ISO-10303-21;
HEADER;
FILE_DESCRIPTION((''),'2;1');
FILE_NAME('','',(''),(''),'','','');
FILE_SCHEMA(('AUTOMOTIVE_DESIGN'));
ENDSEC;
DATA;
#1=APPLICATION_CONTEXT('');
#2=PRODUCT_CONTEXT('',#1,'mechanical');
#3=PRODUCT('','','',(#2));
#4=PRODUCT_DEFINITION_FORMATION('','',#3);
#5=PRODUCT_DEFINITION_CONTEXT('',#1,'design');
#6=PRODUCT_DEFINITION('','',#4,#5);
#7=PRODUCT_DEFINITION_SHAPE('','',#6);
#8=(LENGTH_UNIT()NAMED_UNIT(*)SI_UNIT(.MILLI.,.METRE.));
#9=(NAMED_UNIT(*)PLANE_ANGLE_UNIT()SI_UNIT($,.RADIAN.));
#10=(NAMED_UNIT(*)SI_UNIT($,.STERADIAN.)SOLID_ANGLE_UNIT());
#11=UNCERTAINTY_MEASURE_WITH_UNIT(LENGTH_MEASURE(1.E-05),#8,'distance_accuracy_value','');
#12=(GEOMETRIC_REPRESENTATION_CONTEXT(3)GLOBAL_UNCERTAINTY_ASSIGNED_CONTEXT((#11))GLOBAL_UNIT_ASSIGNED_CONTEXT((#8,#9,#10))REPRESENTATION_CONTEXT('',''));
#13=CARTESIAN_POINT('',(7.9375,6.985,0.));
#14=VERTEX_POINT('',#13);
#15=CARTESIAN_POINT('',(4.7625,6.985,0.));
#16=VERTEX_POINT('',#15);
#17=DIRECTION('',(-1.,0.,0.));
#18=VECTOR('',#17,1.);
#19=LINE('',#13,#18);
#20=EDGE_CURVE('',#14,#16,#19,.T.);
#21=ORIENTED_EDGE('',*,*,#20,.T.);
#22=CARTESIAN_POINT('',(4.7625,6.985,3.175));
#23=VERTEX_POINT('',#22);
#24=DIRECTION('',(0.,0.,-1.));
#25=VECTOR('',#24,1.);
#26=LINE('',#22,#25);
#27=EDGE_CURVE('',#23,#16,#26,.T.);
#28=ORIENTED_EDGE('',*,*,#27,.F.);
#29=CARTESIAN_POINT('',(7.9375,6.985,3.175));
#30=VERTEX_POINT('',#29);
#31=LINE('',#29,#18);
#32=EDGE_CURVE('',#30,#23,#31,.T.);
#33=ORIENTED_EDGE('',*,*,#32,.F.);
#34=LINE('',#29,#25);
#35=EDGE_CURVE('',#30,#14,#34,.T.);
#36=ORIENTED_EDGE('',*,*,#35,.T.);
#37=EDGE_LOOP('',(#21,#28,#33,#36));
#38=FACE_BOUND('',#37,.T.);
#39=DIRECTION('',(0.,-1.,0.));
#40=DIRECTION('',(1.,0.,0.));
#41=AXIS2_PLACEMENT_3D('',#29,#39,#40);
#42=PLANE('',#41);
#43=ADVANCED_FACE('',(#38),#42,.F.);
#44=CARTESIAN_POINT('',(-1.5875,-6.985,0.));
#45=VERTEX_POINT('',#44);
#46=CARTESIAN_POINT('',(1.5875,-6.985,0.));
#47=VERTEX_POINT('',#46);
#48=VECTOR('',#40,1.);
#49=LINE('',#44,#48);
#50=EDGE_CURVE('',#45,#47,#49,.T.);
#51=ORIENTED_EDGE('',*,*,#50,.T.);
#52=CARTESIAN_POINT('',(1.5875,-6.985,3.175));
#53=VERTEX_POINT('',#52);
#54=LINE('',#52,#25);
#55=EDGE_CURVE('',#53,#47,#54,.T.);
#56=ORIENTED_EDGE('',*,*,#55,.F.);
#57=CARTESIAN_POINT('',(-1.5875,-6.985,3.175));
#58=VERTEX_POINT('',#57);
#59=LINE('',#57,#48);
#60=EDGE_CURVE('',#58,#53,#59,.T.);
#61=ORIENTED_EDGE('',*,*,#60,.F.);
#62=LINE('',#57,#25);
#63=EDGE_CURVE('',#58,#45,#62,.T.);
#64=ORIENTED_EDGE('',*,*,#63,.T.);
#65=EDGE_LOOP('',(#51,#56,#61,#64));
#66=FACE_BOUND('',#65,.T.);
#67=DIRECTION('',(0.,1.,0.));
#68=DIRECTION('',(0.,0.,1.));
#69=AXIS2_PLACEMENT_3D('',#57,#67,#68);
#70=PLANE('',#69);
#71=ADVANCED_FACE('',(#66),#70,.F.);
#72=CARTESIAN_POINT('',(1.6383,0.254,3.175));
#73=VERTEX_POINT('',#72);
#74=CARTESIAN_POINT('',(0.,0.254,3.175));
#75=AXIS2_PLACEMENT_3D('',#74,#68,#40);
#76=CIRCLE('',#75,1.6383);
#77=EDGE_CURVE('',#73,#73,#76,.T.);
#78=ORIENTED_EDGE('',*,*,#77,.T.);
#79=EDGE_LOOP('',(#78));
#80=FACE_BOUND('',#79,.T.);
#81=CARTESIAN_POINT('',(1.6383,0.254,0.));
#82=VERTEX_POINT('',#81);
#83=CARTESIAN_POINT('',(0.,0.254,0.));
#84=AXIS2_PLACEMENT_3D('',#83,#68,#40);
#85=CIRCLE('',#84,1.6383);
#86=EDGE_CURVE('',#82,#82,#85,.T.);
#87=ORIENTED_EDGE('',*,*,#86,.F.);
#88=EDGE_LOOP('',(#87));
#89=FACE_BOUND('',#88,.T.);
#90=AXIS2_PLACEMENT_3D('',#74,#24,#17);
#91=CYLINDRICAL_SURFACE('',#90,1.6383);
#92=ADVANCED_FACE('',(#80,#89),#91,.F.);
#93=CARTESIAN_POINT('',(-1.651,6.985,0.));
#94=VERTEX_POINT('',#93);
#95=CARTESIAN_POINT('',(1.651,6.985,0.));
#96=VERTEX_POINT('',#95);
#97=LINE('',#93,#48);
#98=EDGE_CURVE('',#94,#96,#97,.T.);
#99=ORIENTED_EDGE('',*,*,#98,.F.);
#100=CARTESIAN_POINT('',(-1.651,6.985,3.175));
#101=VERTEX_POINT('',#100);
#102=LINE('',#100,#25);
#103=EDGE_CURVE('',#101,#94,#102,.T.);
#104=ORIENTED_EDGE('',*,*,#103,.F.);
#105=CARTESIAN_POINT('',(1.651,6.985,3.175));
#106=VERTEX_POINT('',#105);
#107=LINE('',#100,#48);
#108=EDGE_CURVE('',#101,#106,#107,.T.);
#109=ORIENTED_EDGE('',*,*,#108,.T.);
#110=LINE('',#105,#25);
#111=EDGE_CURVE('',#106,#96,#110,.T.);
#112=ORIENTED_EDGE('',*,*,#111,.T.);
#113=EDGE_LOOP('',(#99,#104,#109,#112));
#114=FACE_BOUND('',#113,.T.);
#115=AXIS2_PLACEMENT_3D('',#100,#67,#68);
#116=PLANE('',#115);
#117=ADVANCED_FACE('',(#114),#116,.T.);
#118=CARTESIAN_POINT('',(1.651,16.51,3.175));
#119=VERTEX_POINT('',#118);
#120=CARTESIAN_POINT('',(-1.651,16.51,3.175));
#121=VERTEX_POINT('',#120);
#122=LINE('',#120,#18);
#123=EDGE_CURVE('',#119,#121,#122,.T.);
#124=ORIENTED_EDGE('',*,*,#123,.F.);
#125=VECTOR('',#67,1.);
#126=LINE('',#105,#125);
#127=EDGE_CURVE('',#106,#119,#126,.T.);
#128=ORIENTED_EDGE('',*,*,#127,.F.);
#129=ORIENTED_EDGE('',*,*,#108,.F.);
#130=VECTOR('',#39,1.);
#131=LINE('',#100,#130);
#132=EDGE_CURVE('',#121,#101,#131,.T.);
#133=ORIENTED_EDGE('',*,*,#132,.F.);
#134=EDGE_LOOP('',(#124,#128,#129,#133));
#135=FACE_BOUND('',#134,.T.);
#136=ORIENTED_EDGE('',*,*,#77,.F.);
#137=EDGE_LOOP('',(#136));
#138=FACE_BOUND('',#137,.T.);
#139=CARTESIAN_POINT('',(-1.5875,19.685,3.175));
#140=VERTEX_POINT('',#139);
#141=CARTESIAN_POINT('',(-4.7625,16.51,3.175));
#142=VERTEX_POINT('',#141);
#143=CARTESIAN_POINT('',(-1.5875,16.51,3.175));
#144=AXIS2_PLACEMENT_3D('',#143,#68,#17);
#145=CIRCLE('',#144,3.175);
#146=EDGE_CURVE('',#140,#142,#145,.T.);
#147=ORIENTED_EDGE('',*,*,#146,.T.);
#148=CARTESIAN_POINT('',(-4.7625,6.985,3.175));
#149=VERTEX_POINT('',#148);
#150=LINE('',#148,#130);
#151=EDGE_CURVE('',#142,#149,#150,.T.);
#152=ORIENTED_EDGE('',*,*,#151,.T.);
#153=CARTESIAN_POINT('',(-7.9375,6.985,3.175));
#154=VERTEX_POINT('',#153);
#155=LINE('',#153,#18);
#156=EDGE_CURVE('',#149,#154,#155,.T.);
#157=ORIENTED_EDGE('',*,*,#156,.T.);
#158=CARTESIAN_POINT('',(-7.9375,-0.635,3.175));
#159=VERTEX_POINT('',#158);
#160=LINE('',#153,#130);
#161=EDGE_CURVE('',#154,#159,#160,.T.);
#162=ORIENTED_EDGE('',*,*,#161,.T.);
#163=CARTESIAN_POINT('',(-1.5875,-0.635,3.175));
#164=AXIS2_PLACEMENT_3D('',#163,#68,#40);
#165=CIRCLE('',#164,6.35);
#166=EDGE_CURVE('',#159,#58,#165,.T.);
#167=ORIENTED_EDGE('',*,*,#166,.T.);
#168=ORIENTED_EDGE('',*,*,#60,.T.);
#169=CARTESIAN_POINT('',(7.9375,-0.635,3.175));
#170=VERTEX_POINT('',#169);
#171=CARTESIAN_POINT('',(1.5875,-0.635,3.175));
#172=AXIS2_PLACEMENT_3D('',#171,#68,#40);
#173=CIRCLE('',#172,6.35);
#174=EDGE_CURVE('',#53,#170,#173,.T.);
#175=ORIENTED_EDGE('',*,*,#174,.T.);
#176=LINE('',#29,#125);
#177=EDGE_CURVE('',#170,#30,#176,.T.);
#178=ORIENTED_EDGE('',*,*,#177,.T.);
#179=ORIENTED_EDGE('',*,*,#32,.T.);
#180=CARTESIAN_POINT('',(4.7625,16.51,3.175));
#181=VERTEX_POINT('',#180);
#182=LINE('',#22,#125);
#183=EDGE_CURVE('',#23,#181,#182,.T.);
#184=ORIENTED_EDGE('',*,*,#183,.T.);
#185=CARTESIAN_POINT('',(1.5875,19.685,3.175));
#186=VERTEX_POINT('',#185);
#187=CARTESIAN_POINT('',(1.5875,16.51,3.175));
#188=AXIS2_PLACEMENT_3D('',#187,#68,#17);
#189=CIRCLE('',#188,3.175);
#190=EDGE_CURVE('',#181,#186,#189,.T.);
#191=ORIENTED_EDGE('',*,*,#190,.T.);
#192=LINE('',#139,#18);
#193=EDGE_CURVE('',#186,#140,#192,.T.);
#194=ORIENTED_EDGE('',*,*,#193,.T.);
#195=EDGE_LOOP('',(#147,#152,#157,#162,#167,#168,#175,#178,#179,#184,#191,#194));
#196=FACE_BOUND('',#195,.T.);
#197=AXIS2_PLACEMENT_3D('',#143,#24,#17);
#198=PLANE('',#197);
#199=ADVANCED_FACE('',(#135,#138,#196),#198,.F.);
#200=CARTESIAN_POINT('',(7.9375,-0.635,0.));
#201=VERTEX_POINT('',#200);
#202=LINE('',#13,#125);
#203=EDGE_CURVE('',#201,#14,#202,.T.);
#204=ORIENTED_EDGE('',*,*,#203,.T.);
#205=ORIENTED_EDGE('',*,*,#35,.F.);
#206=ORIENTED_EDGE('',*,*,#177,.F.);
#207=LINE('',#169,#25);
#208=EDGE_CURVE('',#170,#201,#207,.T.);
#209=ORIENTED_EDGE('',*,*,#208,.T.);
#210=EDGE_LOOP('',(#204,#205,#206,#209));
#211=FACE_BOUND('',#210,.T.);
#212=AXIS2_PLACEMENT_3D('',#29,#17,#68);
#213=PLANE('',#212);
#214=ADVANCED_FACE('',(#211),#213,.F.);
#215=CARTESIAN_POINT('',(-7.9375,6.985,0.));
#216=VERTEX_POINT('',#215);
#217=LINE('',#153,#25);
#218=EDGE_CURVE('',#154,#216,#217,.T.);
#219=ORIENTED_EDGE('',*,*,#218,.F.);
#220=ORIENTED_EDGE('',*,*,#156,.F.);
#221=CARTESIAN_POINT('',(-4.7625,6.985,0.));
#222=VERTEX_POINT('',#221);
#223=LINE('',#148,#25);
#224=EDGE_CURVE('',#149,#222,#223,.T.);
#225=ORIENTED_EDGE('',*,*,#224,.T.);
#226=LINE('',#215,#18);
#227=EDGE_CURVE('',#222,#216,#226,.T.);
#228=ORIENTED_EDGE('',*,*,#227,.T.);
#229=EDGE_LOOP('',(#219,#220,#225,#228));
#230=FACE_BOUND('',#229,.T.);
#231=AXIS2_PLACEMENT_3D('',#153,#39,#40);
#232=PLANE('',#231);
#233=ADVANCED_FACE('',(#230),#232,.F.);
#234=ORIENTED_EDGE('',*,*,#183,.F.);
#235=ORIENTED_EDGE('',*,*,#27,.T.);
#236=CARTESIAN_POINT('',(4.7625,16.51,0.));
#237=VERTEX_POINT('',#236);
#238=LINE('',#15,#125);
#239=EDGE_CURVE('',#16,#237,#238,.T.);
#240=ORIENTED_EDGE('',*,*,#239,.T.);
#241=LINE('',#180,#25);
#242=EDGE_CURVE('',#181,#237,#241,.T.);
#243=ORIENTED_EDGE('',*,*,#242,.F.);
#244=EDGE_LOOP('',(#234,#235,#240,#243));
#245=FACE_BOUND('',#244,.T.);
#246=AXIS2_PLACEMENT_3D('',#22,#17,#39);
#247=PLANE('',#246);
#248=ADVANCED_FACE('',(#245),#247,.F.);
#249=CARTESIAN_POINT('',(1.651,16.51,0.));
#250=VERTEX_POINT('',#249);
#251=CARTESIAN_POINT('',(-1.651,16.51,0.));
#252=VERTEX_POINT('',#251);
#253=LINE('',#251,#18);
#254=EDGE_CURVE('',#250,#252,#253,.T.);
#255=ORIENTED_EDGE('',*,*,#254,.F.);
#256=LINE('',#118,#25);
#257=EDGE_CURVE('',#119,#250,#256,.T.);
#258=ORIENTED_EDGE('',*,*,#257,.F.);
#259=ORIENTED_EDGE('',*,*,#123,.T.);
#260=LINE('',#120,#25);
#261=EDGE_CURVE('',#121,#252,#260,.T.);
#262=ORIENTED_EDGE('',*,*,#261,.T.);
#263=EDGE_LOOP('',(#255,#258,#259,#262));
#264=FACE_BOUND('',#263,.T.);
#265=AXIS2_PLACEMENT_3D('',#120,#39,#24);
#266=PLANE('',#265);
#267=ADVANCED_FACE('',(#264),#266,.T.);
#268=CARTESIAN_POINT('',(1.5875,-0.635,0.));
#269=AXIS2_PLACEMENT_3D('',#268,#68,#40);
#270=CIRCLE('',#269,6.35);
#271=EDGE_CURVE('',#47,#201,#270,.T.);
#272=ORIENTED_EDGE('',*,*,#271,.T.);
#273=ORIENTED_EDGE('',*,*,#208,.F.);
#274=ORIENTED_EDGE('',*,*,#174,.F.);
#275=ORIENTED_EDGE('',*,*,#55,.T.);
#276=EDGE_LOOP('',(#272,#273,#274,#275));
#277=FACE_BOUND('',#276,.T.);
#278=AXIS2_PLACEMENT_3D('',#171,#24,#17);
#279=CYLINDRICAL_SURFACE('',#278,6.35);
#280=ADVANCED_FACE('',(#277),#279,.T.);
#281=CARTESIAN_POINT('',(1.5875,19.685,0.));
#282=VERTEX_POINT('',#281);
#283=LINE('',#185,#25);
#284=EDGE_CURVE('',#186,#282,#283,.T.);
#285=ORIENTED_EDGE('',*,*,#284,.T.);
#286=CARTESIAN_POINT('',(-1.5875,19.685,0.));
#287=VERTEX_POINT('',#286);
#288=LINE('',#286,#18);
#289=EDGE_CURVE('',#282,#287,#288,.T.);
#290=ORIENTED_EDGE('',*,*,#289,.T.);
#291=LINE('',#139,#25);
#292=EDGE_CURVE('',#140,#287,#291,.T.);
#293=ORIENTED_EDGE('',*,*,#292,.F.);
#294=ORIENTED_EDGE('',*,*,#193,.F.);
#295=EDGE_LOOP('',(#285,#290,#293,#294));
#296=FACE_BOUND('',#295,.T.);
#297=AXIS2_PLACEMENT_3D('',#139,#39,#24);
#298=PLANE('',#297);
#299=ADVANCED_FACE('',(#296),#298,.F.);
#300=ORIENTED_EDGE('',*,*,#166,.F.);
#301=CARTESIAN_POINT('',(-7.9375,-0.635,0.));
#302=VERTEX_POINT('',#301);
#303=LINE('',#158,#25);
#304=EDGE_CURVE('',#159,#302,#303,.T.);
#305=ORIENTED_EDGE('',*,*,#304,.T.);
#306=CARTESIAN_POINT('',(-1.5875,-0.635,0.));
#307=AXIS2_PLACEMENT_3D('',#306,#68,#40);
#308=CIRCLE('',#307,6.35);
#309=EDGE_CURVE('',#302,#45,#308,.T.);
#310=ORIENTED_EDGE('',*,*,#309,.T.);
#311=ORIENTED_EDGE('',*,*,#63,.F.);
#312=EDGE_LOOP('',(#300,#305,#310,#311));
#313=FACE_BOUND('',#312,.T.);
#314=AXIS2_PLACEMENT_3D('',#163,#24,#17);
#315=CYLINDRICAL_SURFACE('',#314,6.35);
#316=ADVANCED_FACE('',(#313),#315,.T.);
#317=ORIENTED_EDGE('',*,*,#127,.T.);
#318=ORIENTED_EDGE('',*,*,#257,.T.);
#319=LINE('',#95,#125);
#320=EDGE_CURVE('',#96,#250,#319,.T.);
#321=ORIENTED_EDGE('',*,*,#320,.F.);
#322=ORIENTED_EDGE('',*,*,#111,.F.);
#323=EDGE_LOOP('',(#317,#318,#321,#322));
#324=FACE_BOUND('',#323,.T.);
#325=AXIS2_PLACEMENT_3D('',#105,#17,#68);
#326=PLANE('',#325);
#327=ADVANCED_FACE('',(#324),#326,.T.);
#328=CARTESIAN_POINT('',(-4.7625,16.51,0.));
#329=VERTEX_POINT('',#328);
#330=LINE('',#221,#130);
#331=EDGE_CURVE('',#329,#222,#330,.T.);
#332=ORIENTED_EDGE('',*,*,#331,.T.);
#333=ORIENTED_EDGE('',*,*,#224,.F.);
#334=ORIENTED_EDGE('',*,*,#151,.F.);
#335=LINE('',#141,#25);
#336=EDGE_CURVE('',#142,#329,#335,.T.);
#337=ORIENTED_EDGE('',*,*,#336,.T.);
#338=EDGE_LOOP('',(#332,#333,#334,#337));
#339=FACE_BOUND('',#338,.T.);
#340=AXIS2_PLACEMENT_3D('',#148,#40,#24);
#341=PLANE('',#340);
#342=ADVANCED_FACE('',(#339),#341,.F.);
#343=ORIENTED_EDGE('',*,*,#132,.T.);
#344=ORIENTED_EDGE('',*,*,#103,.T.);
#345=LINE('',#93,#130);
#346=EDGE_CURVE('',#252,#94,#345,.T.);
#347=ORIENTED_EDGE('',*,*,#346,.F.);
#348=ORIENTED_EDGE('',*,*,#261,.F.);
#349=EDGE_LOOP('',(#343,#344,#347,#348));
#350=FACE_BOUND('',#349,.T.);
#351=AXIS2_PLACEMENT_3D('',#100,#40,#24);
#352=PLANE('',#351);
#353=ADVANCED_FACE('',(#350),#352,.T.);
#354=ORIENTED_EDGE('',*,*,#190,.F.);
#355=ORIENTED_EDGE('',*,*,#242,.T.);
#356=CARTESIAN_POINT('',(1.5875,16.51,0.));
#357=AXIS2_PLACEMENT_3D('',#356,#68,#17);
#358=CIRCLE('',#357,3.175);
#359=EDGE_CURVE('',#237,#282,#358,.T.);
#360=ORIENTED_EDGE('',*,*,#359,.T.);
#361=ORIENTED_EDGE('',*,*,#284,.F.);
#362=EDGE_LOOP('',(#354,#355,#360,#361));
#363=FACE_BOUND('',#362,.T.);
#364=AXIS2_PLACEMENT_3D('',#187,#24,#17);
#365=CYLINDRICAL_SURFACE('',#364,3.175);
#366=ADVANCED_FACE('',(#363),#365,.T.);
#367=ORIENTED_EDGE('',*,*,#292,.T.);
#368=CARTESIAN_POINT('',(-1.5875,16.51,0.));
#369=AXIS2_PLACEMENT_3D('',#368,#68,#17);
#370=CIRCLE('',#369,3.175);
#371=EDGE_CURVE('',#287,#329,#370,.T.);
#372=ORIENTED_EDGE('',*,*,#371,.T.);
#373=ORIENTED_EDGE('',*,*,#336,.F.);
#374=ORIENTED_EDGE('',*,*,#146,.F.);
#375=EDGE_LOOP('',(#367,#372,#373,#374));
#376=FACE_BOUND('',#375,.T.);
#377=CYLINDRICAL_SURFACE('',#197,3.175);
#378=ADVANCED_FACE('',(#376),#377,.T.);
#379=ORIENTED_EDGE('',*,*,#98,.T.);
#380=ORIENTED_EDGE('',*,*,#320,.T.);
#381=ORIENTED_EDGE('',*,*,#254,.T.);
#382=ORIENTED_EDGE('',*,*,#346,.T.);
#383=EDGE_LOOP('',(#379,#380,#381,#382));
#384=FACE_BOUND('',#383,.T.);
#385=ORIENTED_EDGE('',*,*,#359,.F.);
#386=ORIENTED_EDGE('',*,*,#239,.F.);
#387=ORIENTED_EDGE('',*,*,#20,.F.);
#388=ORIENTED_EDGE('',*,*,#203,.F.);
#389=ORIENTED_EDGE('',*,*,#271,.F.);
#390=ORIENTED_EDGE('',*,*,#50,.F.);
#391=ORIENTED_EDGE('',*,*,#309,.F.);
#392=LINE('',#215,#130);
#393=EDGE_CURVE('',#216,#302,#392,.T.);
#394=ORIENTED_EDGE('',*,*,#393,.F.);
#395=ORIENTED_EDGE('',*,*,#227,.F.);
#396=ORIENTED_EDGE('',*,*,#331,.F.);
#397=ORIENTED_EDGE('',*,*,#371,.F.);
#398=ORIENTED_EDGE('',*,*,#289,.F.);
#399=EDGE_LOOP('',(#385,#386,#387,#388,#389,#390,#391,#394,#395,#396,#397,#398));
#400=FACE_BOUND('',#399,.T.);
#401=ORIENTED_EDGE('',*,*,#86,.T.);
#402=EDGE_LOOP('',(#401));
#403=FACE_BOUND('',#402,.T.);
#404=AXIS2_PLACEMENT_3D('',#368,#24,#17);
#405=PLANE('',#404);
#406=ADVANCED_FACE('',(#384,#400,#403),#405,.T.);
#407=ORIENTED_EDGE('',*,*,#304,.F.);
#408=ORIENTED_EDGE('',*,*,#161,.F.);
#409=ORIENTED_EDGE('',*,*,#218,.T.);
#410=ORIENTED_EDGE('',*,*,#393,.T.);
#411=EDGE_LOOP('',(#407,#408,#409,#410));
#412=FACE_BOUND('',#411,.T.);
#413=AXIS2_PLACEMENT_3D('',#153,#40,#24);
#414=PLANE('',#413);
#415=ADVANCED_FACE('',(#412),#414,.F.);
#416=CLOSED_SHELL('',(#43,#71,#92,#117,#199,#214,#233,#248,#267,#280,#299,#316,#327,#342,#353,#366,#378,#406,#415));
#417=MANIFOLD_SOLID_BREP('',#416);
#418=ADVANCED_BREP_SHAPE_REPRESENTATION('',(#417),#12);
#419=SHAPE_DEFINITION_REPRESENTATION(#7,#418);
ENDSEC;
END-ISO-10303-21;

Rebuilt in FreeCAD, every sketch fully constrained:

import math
import FreeCAD as App
import Part
import Sketcher
from FreeCAD import Vector
Q = App.Units.Quantity


def add_polygon(sketch, points):
    """Adds a closed chain of lines whose ends are joined by coincident constraints."""
    first, n = sketch.GeometryCount, len(points)
    for a, b in zip(points, points[1:] + points[:1]):
        sketch.addGeometry(Part.LineSegment(App.Vector(*a, 0), App.Vector(*b, 0)), False)
    for i in range(n):
        sketch.addConstraint(Sketcher.Constraint("Coincident", first + i, 2, first + (i + 1) % n, 1))

doc = App.newDocument("Part")
params = doc.addObject("Spreadsheet::Sheet", "Params")
for row, (alias, value) in enumerate([
    ("sketch1_radius", "0.25 in"),
    ("sketch1_diameter", "0.129 in"),
    ("sketch1_height", "0.3 in"),
    ("sketch1_radius2", "0.125 in"),
    ("sketch1_width", "0.13 in"),
    ("pad1_length", "0.125 in"),
], start=1):
    params.set(f"A{row}", alias)
    params.set(f"B{row}", "=" + value)
    params.setAlias(f"B{row}", alias)

body = doc.addObject("PartDesign::Body", "Body")

# Sketch on XY plane
sketch1 = doc.addObject("Sketcher::SketchObject", "Sketch")
body.addObject(sketch1)
sketch1.AttachmentSupport = (doc.XY_Plane, [""])
sketch1.MapMode = "FlatFace"
sketch1.addGeometry(Part.LineSegment(Vector(1.6, 19.7, 0), Vector(-1.6, 19.7, 0)), False)  # 0
sketch1.addGeometry(Part.ArcOfCircle(Part.Circle(Vector(-1.6, 16.5, 0), Vector(0, 0, 1), 3.2), math.radians(90), math.radians(180)), False)  # 1
sketch1.addGeometry(Part.LineSegment(Vector(-4.8, 16.5, 0), Vector(-4.8, 7, 0)), False)  # 2
sketch1.addGeometry(Part.LineSegment(Vector(-4.8, 7, 0), Vector(-7.9, 7, 0)), False)  # 3
sketch1.addGeometry(Part.LineSegment(Vector(-7.9, 7, 0), Vector(-7.9, -0.6, 0)), False)  # 4
sketch1.addGeometry(Part.ArcOfCircle(Part.Circle(Vector(-1.6, -0.6, 0), Vector(0, 0, 1), 6.3), math.radians(180), math.radians(270)), False)  # 5
sketch1.addGeometry(Part.LineSegment(Vector(-1.6, -7, 0), Vector(1.6, -7, 0)), False)  # 6
sketch1.addGeometry(Part.ArcOfCircle(Part.Circle(Vector(1.6, -0.6, 0), Vector(0, 0, 1), 6.3), math.radians(-90), math.radians(0)), False)  # 7
sketch1.addGeometry(Part.LineSegment(Vector(7.9, -0.6, 0), Vector(7.9, 7, 0)), False)  # 8
sketch1.addGeometry(Part.LineSegment(Vector(7.9, 7, 0), Vector(4.8, 7, 0)), False)  # 9
sketch1.addGeometry(Part.LineSegment(Vector(4.8, 7, 0), Vector(4.8, 16.5, 0)), False)  # 10
sketch1.addGeometry(Part.ArcOfCircle(Part.Circle(Vector(1.6, 16.5, 0), Vector(0, 0, 1), 3.2), math.radians(0), math.radians(90)), False)  # 11
sketch1.addGeometry(Part.Circle(Vector(0, 0.3, 0), Vector(0, 0, 1), 1.6), False)  # 12
add_polygon(sketch1, [(-1.7, 7), (-1.7, 16.5), (1.7, 16.5), (1.7, 7)])  # lines 13-16
sketch1.addConstraint(Sketcher.Constraint("Tangent", 0, 2, 1, 1))
sketch1.addConstraint(Sketcher.Constraint("Tangent", 1, 2, 2, 1))
sketch1.addConstraint(Sketcher.Constraint("Coincident", 2, 2, 3, 1))
sketch1.addConstraint(Sketcher.Constraint("Coincident", 3, 2, 4, 1))
sketch1.addConstraint(Sketcher.Constraint("Tangent", 4, 2, 5, 1))
sketch1.addConstraint(Sketcher.Constraint("Tangent", 5, 2, 6, 1))
sketch1.addConstraint(Sketcher.Constraint("Tangent", 6, 2, 7, 1))
sketch1.addConstraint(Sketcher.Constraint("Tangent", 7, 2, 8, 1))
sketch1.addConstraint(Sketcher.Constraint("Coincident", 8, 2, 9, 1))
sketch1.addConstraint(Sketcher.Constraint("Coincident", 9, 2, 10, 1))
sketch1.addConstraint(Sketcher.Constraint("Tangent", 10, 2, 11, 1))
sketch1.addConstraint(Sketcher.Constraint("Tangent", 11, 2, 0, 1))
sketch1.addConstraint(Sketcher.Constraint("Horizontal", 0))
sketch1.addConstraint(Sketcher.Constraint("Vertical", 2))
sketch1.addConstraint(Sketcher.Constraint("Horizontal", 3))
sketch1.addConstraint(Sketcher.Constraint("Vertical", 4))
sketch1.addConstraint(Sketcher.Constraint("Horizontal", 6))
sketch1.addConstraint(Sketcher.Constraint("Vertical", 8))
sketch1.addConstraint(Sketcher.Constraint("Horizontal", 9))
sketch1.addConstraint(Sketcher.Constraint("Vertical", 10))
sketch1.addConstraint(Sketcher.Constraint("Vertical", 13))
sketch1.addConstraint(Sketcher.Constraint("Horizontal", 14))
sketch1.addConstraint(Sketcher.Constraint("Vertical", 15))
sketch1.addConstraint(Sketcher.Constraint("Horizontal", 16))
sketch1.addConstraint(Sketcher.Constraint("Equal", 5, 7))
sketch1.addConstraint(Sketcher.Constraint("Equal", 1, 11))
sketch1.addConstraint(Sketcher.Constraint("Symmetric", 3, 2, 8, 2, -2))
sketch1.addConstraint(Sketcher.Constraint("PointOnObject", 12, 3, -2))
sketch1.addConstraint(Sketcher.Constraint("Horizontal", 10, 2, 13, 2))
sketch1.addConstraint(Sketcher.Constraint("Horizontal", 9, 2, 15, 2))
sketch1.addConstraint(Sketcher.Constraint("Vertical", 1, 3, 5, 3))
sketch1.addConstraint(Sketcher.Constraint("Vertical", 7, 3, 11, 3))
sketch1.addConstraint(Sketcher.Constraint("Equal", 0, 3))
sketch1.addConstraint(Sketcher.Constraint("Radius", 5, Q("0.25 in")))
sketch1.addConstraint(Sketcher.Constraint("Diameter", 12, Q("0.129 in")))
sketch1.addConstraint(Sketcher.Constraint("DistanceY", 4, 2, 4, 1, Q("0.3 in")))
sketch1.addConstraint(Sketcher.Constraint("Radius", 1, Q("0.125 in")))
sketch1.addConstraint(Sketcher.Constraint("DistanceX", 14, 1, 14, 2, Q("0.13 in")))
sketch1.addConstraint(Sketcher.Constraint("DistanceY", 5, 3, 0, 2, Q("0.8 in")))
sketch1.addConstraint(Sketcher.Constraint("DistanceY", -1, 1, 1, 3, Q("0.65 in")))
sketch1.addConstraint(Sketcher.Constraint("DistanceY", -1, 1, 12, 3, Q("0.01 in")))
sketch1.addConstraint(Sketcher.Constraint("DistanceX", 13, 2, -1, 1, Q("0.065 in")))
sketch1.setExpression("Constraints[37]", "Params.sketch1_radius")
sketch1.setExpression("Constraints[38]", "Params.sketch1_diameter")
sketch1.setExpression("Constraints[39]", "Params.sketch1_height")
sketch1.setExpression("Constraints[40]", "Params.sketch1_radius2")
sketch1.setExpression("Constraints[41]", "Params.sketch1_width")
pad1 = doc.addObject("PartDesign::Pad", "Pad")
body.addObject(pad1)
pad1.Profile = sketch1
pad1.setExpression("Length", "Params.pad1_length")

doc.recompute()
